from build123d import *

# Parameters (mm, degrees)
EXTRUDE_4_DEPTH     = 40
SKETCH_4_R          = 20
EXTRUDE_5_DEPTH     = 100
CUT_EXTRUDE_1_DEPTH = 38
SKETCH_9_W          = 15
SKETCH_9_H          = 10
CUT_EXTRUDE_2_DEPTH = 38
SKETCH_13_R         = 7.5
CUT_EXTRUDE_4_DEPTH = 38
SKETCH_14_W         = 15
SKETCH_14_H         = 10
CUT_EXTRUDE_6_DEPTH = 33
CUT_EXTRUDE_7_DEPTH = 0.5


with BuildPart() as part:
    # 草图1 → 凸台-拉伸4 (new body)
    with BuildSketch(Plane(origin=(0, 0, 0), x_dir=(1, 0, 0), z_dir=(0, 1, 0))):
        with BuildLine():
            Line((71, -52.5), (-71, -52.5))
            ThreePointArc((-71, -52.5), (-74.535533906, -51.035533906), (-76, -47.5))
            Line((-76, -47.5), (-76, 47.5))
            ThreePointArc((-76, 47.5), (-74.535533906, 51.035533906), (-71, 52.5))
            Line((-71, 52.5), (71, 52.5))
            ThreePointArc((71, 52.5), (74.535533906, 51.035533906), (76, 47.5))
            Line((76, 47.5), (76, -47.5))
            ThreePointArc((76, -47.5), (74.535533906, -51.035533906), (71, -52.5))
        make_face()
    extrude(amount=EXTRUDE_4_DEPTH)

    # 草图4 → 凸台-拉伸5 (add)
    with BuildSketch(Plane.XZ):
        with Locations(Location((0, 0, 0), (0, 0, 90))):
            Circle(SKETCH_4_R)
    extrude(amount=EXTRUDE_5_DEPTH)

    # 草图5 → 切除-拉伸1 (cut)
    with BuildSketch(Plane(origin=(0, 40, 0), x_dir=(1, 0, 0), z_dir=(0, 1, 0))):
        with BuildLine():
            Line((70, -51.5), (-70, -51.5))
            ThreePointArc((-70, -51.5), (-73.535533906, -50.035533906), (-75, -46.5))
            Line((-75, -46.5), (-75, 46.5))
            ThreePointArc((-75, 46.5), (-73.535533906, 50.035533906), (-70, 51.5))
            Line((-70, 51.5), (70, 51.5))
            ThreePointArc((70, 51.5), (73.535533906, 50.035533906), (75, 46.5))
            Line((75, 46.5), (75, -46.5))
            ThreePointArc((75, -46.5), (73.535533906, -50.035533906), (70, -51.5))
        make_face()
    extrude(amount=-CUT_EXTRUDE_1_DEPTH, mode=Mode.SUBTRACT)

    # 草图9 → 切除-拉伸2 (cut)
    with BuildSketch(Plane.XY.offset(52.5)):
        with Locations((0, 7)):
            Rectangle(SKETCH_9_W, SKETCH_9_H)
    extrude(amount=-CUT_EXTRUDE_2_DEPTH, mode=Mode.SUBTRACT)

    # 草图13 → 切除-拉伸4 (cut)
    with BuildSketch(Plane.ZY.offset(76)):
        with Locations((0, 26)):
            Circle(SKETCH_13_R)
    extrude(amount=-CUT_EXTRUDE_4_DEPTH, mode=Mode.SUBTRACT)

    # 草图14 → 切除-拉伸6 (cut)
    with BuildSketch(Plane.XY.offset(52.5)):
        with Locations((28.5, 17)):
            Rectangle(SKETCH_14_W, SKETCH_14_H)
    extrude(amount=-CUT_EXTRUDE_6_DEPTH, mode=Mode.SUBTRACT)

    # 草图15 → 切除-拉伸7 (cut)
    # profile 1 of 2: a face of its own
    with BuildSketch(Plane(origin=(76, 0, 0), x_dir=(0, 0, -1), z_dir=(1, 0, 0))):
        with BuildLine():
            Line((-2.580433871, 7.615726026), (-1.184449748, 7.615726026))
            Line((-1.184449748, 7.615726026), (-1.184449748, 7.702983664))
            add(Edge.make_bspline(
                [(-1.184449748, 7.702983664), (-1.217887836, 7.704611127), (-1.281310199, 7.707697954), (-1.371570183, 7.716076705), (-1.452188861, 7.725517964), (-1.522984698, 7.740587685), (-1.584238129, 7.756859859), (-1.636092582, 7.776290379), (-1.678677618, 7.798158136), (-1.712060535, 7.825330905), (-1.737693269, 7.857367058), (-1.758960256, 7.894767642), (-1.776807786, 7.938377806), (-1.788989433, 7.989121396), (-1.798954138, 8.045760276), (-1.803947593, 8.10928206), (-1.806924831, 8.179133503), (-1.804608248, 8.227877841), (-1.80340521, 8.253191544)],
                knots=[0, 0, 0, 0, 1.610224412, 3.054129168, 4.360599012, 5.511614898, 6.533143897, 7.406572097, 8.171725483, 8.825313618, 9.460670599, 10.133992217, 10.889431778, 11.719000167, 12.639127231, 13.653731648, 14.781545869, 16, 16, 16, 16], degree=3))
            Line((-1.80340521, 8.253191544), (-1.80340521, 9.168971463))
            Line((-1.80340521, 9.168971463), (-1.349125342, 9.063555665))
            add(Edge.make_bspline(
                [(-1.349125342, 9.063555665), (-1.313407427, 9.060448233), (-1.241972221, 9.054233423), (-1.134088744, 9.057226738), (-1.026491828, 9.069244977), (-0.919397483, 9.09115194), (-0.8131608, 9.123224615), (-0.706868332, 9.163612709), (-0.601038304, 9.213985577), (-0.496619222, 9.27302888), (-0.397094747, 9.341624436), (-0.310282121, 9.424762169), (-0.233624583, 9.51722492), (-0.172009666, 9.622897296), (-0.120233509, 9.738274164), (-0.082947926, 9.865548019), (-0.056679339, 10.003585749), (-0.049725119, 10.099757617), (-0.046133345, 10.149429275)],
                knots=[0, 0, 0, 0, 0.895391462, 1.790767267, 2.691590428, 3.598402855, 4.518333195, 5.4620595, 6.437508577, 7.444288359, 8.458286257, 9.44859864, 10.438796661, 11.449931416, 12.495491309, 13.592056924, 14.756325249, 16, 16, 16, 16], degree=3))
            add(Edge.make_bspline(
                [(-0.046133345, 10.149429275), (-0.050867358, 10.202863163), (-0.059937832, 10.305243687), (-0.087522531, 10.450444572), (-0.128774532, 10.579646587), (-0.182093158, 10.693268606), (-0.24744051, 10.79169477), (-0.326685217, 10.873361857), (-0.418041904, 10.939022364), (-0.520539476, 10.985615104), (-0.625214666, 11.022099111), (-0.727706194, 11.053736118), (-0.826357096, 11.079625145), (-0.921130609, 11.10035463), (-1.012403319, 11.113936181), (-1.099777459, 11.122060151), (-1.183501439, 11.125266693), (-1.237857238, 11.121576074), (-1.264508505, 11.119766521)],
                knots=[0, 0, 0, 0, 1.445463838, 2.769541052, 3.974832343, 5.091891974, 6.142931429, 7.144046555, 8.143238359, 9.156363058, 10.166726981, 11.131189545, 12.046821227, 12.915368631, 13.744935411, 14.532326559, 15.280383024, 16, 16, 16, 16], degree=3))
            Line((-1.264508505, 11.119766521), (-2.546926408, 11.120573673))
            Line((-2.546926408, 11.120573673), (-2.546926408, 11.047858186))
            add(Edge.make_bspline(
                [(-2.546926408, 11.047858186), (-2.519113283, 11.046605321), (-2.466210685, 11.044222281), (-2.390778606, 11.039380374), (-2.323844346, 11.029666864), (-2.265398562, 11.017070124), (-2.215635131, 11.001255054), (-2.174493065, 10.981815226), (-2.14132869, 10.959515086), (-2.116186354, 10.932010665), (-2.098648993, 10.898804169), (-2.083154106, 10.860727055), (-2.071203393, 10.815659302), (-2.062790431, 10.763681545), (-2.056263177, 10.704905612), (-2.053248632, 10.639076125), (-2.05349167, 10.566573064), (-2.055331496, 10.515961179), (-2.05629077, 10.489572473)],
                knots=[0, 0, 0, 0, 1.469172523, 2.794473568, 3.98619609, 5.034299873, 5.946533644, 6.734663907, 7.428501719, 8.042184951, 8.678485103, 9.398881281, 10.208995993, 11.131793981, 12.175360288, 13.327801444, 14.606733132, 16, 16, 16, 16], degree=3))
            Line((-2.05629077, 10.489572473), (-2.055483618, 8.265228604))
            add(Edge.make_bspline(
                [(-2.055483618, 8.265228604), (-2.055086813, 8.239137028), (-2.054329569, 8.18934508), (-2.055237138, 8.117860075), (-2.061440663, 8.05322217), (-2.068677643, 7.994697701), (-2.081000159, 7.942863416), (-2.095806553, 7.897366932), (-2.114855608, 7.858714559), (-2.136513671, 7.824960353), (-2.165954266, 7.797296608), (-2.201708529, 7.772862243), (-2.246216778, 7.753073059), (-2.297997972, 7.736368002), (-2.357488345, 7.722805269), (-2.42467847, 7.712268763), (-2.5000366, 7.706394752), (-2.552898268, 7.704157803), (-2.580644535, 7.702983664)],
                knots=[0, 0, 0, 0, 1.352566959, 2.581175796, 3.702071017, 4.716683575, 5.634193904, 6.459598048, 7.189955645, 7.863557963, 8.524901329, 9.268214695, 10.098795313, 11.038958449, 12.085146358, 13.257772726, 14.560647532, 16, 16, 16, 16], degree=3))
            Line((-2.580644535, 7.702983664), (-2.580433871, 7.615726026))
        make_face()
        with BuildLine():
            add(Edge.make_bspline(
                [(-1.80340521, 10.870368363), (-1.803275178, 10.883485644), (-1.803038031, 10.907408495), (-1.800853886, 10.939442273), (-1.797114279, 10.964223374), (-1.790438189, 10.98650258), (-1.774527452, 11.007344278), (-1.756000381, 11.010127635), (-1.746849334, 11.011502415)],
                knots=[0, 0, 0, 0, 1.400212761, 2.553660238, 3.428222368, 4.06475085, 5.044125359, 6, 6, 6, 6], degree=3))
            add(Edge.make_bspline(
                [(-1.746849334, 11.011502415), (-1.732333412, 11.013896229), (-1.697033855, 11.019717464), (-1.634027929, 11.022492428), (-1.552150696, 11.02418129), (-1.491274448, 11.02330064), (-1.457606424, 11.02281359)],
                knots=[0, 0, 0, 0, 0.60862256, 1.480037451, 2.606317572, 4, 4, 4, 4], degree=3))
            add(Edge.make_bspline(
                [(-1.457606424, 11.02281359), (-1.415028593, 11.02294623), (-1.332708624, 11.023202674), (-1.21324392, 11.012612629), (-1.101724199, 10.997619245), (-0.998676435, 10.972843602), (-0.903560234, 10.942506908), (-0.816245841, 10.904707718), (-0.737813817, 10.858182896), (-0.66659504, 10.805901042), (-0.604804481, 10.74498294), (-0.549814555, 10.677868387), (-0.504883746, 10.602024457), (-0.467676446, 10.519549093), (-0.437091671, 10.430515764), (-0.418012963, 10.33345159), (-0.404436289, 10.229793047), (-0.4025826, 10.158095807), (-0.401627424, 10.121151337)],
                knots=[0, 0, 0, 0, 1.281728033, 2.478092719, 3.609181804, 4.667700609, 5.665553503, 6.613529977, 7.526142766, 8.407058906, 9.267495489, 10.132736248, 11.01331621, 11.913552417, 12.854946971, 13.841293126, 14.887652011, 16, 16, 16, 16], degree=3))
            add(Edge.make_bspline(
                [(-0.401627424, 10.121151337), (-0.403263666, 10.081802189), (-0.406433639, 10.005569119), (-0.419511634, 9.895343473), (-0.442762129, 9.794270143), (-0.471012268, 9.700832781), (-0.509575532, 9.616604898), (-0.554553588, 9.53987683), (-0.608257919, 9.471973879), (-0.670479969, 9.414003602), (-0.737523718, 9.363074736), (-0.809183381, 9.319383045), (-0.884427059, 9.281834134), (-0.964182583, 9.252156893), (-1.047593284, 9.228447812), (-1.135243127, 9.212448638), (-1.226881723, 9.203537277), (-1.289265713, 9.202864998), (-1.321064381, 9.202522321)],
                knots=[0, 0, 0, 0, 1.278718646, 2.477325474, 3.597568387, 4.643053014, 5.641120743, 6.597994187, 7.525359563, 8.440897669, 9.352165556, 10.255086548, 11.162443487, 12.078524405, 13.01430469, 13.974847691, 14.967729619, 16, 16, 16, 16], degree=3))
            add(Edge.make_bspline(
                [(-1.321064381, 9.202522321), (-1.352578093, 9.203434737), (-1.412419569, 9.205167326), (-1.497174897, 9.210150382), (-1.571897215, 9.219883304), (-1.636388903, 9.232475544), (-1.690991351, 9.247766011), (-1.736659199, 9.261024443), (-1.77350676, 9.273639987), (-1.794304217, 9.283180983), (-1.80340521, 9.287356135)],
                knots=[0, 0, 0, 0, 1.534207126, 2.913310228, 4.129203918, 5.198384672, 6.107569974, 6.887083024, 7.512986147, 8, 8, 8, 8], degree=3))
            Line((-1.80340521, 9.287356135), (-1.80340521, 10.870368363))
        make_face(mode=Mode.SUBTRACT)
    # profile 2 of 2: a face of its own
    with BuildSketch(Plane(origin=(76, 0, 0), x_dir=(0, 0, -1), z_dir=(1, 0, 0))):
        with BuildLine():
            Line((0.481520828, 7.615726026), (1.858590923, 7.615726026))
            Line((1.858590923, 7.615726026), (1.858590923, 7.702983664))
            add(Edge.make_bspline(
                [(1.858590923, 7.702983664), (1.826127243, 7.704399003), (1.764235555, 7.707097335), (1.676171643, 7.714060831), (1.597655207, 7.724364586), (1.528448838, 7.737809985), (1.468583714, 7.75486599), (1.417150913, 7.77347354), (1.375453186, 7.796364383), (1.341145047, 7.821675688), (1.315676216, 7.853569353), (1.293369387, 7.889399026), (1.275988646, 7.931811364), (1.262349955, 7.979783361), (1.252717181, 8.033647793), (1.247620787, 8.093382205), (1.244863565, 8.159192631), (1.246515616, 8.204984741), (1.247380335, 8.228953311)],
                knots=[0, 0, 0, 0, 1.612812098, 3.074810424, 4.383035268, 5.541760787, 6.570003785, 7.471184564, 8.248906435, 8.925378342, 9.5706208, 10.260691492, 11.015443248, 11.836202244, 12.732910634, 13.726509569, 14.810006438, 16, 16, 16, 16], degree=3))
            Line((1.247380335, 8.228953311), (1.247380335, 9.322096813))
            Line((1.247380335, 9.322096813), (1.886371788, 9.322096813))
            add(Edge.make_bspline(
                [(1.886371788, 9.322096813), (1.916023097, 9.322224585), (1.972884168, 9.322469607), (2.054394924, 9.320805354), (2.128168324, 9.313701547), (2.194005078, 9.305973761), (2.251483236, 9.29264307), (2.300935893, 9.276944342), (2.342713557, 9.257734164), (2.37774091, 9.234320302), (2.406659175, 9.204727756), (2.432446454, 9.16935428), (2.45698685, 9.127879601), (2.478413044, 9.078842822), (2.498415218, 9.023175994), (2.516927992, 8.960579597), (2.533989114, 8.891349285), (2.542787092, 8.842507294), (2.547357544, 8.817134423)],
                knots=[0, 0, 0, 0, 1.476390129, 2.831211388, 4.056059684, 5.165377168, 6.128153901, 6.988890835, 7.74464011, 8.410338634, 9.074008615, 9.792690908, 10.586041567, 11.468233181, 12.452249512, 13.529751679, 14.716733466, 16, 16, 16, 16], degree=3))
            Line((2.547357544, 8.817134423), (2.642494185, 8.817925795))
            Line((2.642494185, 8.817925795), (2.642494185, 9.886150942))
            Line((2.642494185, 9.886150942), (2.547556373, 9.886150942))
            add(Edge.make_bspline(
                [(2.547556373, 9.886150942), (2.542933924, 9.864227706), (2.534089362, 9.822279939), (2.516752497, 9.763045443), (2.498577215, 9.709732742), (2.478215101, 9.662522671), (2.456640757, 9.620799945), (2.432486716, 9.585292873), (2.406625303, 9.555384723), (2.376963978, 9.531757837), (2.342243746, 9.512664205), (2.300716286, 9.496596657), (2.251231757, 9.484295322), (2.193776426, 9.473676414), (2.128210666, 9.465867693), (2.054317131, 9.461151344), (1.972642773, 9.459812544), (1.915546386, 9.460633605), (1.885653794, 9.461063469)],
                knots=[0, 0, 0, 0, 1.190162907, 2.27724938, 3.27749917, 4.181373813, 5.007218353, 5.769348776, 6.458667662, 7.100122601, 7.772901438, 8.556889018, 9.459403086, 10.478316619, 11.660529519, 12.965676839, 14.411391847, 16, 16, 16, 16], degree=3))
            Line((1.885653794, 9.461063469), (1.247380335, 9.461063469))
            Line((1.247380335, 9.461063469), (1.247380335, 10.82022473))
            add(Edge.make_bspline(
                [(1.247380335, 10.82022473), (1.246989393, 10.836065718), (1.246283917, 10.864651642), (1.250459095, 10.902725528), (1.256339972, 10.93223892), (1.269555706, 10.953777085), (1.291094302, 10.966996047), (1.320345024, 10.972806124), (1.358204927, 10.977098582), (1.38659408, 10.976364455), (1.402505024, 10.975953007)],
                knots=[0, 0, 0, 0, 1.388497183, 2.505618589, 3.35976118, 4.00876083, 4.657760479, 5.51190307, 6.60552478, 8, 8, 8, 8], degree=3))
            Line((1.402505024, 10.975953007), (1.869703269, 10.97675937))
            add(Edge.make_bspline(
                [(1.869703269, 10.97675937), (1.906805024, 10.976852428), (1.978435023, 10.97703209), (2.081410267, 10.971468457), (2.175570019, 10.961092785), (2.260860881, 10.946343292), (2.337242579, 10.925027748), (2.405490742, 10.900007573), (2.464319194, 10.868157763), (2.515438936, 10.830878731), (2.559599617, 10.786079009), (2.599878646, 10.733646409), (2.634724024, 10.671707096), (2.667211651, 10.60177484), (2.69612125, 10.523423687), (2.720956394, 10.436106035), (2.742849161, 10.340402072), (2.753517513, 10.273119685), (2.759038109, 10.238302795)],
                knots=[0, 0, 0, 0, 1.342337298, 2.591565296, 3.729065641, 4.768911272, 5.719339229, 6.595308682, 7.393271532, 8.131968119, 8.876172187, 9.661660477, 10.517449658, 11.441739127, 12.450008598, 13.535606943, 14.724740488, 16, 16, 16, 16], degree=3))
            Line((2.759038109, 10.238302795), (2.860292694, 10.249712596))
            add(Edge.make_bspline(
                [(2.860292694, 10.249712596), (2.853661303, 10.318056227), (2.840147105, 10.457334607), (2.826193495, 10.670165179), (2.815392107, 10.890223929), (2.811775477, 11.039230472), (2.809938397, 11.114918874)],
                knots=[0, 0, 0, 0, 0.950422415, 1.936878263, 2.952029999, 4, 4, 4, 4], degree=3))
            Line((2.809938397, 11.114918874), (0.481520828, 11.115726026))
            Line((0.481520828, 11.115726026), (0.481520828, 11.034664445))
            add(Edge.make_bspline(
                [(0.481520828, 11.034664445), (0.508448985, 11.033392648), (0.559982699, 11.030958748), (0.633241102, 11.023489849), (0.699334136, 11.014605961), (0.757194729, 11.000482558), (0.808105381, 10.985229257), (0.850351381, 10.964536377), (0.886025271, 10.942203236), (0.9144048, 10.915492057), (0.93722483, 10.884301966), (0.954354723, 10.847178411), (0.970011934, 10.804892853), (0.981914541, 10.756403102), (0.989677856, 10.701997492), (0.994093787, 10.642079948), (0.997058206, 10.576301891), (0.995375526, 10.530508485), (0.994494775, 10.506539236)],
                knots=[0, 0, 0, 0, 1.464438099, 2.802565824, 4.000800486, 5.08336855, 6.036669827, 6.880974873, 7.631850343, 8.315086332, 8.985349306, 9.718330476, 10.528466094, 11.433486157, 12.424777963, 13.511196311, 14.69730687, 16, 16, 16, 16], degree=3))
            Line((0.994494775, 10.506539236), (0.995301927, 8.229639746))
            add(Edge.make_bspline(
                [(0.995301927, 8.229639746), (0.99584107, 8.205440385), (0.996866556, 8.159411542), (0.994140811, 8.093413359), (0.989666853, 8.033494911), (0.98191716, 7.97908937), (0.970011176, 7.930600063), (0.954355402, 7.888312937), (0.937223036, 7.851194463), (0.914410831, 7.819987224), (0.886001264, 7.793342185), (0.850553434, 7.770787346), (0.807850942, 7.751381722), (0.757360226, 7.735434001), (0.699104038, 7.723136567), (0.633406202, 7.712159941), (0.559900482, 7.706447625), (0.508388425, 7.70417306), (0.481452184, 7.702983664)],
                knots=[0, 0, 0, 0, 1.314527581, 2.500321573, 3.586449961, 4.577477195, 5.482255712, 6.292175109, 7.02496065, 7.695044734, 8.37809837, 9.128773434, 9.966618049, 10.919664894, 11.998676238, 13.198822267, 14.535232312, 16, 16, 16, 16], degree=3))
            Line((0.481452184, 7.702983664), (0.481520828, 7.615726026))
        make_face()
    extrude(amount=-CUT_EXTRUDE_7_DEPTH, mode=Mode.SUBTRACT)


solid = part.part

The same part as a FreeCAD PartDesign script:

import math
import FreeCAD as App
import Part
import Sketcher

V = App.Vector
Q = App.Units.Quantity

doc = App.newDocument("Part")
body = doc.addObject("PartDesign::Body", "Body")

sketch1 = body.newObject("Sketcher::SketchObject", "Sketch")
sketch1.AttachmentSupport = (doc.getObject("XZ_Plane"), [""])
sketch1.MapMode = "FlatFace"
sketch1.addGeometry([
    Part.LineSegment(V(-71, 52, 0), V(71, 52, 0)),
    Part.ArcOfCircle(Part.Circle(V(71, 48, 0), V(0, 0, 1), 5), math.radians(0), math.radians(90)),
    Part.LineSegment(V(76, 48, 0), V(76, -48, 0)),
    Part.ArcOfCircle(Part.Circle(V(71, -48, 0), V(0, 0, 1), 5), math.radians(-90), math.radians(0)),
    Part.LineSegment(V(71, -52, 0), V(-71, -52, 0)),
    Part.ArcOfCircle(Part.Circle(V(-71, -48, 0), V(0, 0, 1), 5), math.radians(180), math.radians(270)),
    Part.LineSegment(V(-76, -48, 0), V(-76, 48, 0)),
    Part.ArcOfCircle(Part.Circle(V(-71, 48, 0), V(0, 0, 1), 5), math.radians(90), math.radians(180)),
], False)
sketch1.addConstraint([
    Sketcher.Constraint("Tangent", 0, 2, 1, 2),
    Sketcher.Constraint("Tangent", 1, 1, 2, 1),
    Sketcher.Constraint("Tangent", 2, 2, 3, 2),
    Sketcher.Constraint("Tangent", 3, 1, 4, 1),
    Sketcher.Constraint("Tangent", 4, 2, 5, 2),
    Sketcher.Constraint("Tangent", 5, 1, 6, 1),
    Sketcher.Constraint("Tangent", 6, 2, 7, 2),
    Sketcher.Constraint("Tangent", 7, 1, 0, 1),
    Sketcher.Constraint("Horizontal", 0),
    Sketcher.Constraint("Vertical", 2),
    Sketcher.Constraint("Horizontal", 4),
    Sketcher.Constraint("Vertical", 6),
    Sketcher.Constraint("Equal", 1, 3),
    Sketcher.Constraint("Equal", 3, 5),
    Sketcher.Constraint("Equal", 5, 7),
    Sketcher.Constraint("Symmetric", 1, 3, 5, 3, -1, 1),
    Sketcher.Constraint("Radius", 1, Q("5 mm")),
    Sketcher.Constraint("DistanceX", 0, 1, 0, 2, Q("142 mm")),
    Sketcher.Constraint("DistanceY", 2, 2, 2, 1, Q("95 mm")),
])
pad1 = body.newObject("PartDesign::Pad", "Pad")
pad1.Profile = sketch1
pad1.Length = 40
pad1.Reversed = True

sketch2 = body.newObject("Sketcher::SketchObject", "Sketch001")
sketch2.AttachmentSupport = (doc.getObject("XZ_Plane"), [""])
sketch2.MapMode = "FlatFace"
sketch2.addGeometry(Part.Circle(V(0, 0, 0), V(0, 0, 1), 20), False)
sketch2.addConstraint([
    Sketcher.Constraint("Coincident", 0, 3, -1, 1),
    Sketcher.Constraint("Diameter", 0, Q("40 mm")),
])
pad2 = body.newObject("PartDesign::Pad", "Pad001")
pad2.Profile = sketch2
pad2.Length = 100

sketch3 = body.newObject("Sketcher::SketchObject", "Sketch002")
sketch3.AttachmentSupport = (doc.getObject("XZ_Plane"), [""])
sketch3.MapMode = "FlatFace"
sketch3.AttachmentOffset = App.Placement(V(0, 0, -40), App.Rotation())
sketch3.addGeometry([
    Part.LineSegment(V(-70, 52, 0), V(70, 52, 0)),
    Part.ArcOfCircle(Part.Circle(V(70, 46, 0), V(0, 0, 1), 5), math.radians(0), math.radians(90)),
    Part.LineSegment(V(75, 46, 0), V(75, -46, 0)),
    Part.ArcOfCircle(Part.Circle(V(70, -46, 0), V(0, 0, 1), 5), math.radians(-90), math.radians(0)),
    Part.LineSegment(V(70, -52, 0), V(-70, -52, 0)),
    Part.ArcOfCircle(Part.Circle(V(-70, -46, 0), V(0, 0, 1), 5), math.radians(180), math.radians(270)),
    Part.LineSegment(V(-75, -46, 0), V(-75, 46, 0)),
    Part.ArcOfCircle(Part.Circle(V(-70, 46, 0), V(0, 0, 1), 5), math.radians(90), math.radians(180)),
], False)
sketch3.addConstraint([
    Sketcher.Constraint("Tangent", 0, 2, 1, 2),
    Sketcher.Constraint("Tangent", 1, 1, 2, 1),
    Sketcher.Constraint("Tangent", 2, 2, 3, 2),
    Sketcher.Constraint("Tangent", 3, 1, 4, 1),
    Sketcher.Constraint("Tangent", 4, 2, 5, 2),
    Sketcher.Constraint("Tangent", 5, 1, 6, 1),
    Sketcher.Constraint("Tangent", 6, 2, 7, 2),
    Sketcher.Constraint("Tangent", 7, 1, 0, 1),
    Sketcher.Constraint("Horizontal", 0),
    Sketcher.Constraint("Vertical", 2),
    Sketcher.Constraint("Horizontal", 4),
    Sketcher.Constraint("Vertical", 6),
    Sketcher.Constraint("Equal", 1, 3),
    Sketcher.Constraint("Equal", 3, 5),
    Sketcher.Constraint("Equal", 5, 7),
    Sketcher.Constraint("Symmetric", 1, 3, 5, 3, -1, 1),
    Sketcher.Constraint("Radius", 1, Q("5 mm")),
    Sketcher.Constraint("DistanceX", 0, 1, 0, 2, Q("140 mm")),
    Sketcher.Constraint("DistanceY", 2, 2, 2, 1, Q("93 mm")),
])
pocket1 = body.newObject("PartDesign::Pocket", "Pocket")
pocket1.Profile = sketch3
pocket1.Length = 38
pocket1.Reversed = True

sketch4 = body.newObject("Sketcher::SketchObject", "Sketch003")
sketch4.AttachmentSupport = (doc.getObject("XY_Plane"), [""])
sketch4.MapMode = "FlatFace"
sketch4.AttachmentOffset = App.Placement(V(0, 0, 52.5), App.Rotation())
sketch4.addGeometry([
    Part.LineSegment(V(-8, 12, 0), V(-8, 2, 0)),
    Part.LineSegment(V(-8, 2, 0), V(8, 2, 0)),
    Part.LineSegment(V(8, 2, 0), V(8, 12, 0)),
    Part.LineSegment(V(8, 12, 0), V(-8, 12, 0)),
], False)
sketch4.addConstraint([
    Sketcher.Constraint("Coincident", 0, 2, 1, 1),
    Sketcher.Constraint("Coincident", 1, 2, 2, 1),
    Sketcher.Constraint("Coincident", 2, 2, 3, 1),
    Sketcher.Constraint("Coincident", 3, 2, 0, 1),
    Sketcher.Constraint("Vertical", 0),
    Sketcher.Constraint("Horizontal", 1),
    Sketcher.Constraint("Vertical", 2),
    Sketcher.Constraint("Horizontal", 3),
    Sketcher.Constraint("DistanceX", 1, 1, 1, 2, Q("15 mm")),
    Sketcher.Constraint("DistanceY", 0, 2, 0, 1, Q("10 mm")),
    Sketcher.Constraint("DistanceY", -1, 1, 0, 2, Q("2 mm")),
    Sketcher.Constraint("DistanceX", 0, 2, -1, 1, Q("7.5 mm")),
])
pocket2 = body.newObject("PartDesign::Pocket", "Pocket001")
pocket2.Profile = sketch4
pocket2.Length = 38

sketch5 = body.newObject("Sketcher::SketchObject", "Sketch004")
sketch5.AttachmentSupport = (doc.getObject("YZ_Plane"), [""])
sketch5.MapMode = "FlatFace"
sketch5.AttachmentOffset = App.Placement(V(0, 0, -76), App.Rotation())
sketch5.addGeometry(Part.Circle(V(26, 0, 0), V(0, 0, 1), 8), False)
sketch5.addConstraint([
    Sketcher.Constraint("PointOnObject", 0, 3, -1),
    Sketcher.Constraint("Diameter", 0, Q("15 mm")),
    Sketcher.Constraint("DistanceX", -1, 1, 0, 3, Q("26 mm")),
])
pocket3 = body.newObject("PartDesign::Pocket", "Pocket002")
pocket3.Profile = sketch5
pocket3.Length = 38
pocket3.Reversed = True

sketch6 = body.newObject("Sketcher::SketchObject", "Sketch005")
sketch6.AttachmentSupport = (doc.getObject("XY_Plane"), [""])
sketch6.MapMode = "FlatFace"
sketch6.AttachmentOffset = App.Placement(V(0, 0, 52.5), App.Rotation())
sketch6.addGeometry([
    Part.LineSegment(V(21, 22, 0), V(21, 12, 0)),
    Part.LineSegment(V(21, 12, 0), V(36, 12, 0)),
    Part.LineSegment(V(36, 12, 0), V(36, 22, 0)),
    Part.LineSegment(V(36, 22, 0), V(21, 22, 0)),
], False)
sketch6.addConstraint([
    Sketcher.Constraint("Coincident", 0, 2, 1, 1),
    Sketcher.Constraint("Coincident", 1, 2, 2, 1),
    Sketcher.Constraint("Coincident", 2, 2, 3, 1),
    Sketcher.Constraint("Coincident", 3, 2, 0, 1),
    Sketcher.Constraint("Vertical", 0),
    Sketcher.Constraint("Horizontal", 1),
    Sketcher.Constraint("Vertical", 2),
    Sketcher.Constraint("Horizontal", 3),
    Sketcher.Constraint("DistanceX", 1, 1, 1, 2, Q("15 mm")),
    Sketcher.Constraint("DistanceY", 0, 2, 0, 1, Q("10 mm")),
    Sketcher.Constraint("DistanceX", -1, 1, 0, 2, Q("21 mm")),
    Sketcher.Constraint("DistanceY", -1, 1, 0, 2, Q("12 mm")),
])
pocket4 = body.newObject("PartDesign::Pocket", "Pocket003")
pocket4.Profile = sketch6
pocket4.Length = 33

sketch7 = body.newObject("Sketcher::SketchObject", "Sketch006")
sketch7.AttachmentSupport = (doc.getObject("YZ_Plane"), [""])
sketch7.MapMode = "FlatFace"
sketch7.AttachmentOffset = App.Placement(V(0, 0, 76), App.Rotation())
sketch7.addGeometry([
    Part.LineSegment(V(7.615726, 2.580434, 0), V(7.615726, 1.18445, 0)),
    Part.LineSegment(V(7.615726, 1.18445, 0), V(7.702984, 1.18445, 0)),
    Part.BSplineCurve([V(7.702984, 1.18445, 0), V(7.704611, 1.217888, 0), V(7.707698, 1.28131, 0), V(7.716077, 1.37157, 0), V(7.725518, 1.452189, 0), V(7.740588, 1.522985, 0), V(7.75686, 1.584238, 0), V(7.77629, 1.636093, 0), V(7.798158, 1.678678, 0), V(7.825331, 1.712061, 0), V(7.857367, 1.737693, 0), V(7.894768, 1.75896, 0), V(7.938378, 1.776808, 0), V(7.989121, 1.788989, 0), V(8.04576, 1.798954, 0), V(8.109282, 1.803948, 0), V(8.179134, 1.806925, 0), V(8.227878, 1.804608, 0), V(8.253192, 1.803405, 0)], [4, 1, 1, 1, 1, 1, 1, 1, 1, 1, 1, 1, 1, 1, 1, 1, 4], [0, 1.610224412, 3.054129168, 4.360599012, 5.511614898, 6.533143897, 7.406572097, 8.171725483, 8.825313618, 9.460670599, 10.133992217, 10.889431778, 11.719000167, 12.639127231, 13.653731648, 14.781545869, 16], False, 3, [1, 1, 1, 1, 1, 1, 1, 1, 1, 1, 1, 1, 1, 1, 1, 1, 1, 1, 1], False),
    Part.LineSegment(V(8.253192, 1.803405, 0), V(9.168971, 1.803405, 0)),
    Part.LineSegment(V(9.168971, 1.803405, 0), V(9.063556, 1.349125, 0)),
    Part.BSplineCurve([V(9.063556, 1.349125, 0), V(9.060448, 1.313407, 0), V(9.054233, 1.241972, 0), V(9.057227, 1.134089, 0), V(9.069245, 1.026492, 0), V(9.091152, 0.919397, 0), V(9.123225, 0.813161, 0), V(9.163613, 0.706868, 0), V(9.213986, 0.601038, 0), V(9.273029, 0.496619, 0), V(9.341624, 0.397095, 0), V(9.424762, 0.310282, 0), V(9.517225, 0.233625, 0), V(9.622897, 0.17201, 0), V(9.738274, 0.120234, 0), V(9.865548, 0.082948, 0), V(10.003586, 0.056679, 0), V(10.099758, 0.049725, 0), V(10.149429, 0.046133, 0)], [4, 1, 1, 1, 1, 1, 1, 1, 1, 1, 1, 1, 1, 1, 1, 1, 4], [0, 0.895391462, 1.790767267, 2.691590428, 3.598402855, 4.518333195, 5.4620595, 6.437508577, 7.444288359, 8.458286257, 9.44859864, 10.438796661, 11.449931416, 12.495491309, 13.592056924, 14.756325249, 16], False, 3, [1, 1, 1, 1, 1, 1, 1, 1, 1, 1, 1, 1, 1, 1, 1, 1, 1, 1, 1], False),
    Part.BSplineCurve([V(10.149429, 0.046133, 0), V(10.202863, 0.050867, 0), V(10.305244, 0.059938, 0), V(10.450445, 0.087523, 0), V(10.579647, 0.128775, 0), V(10.693269, 0.182093, 0), V(10.791695, 0.247441, 0), V(10.873362, 0.326685, 0), V(10.939022, 0.418042, 0), V(10.985615, 0.520539, 0), V(11.022099, 0.625215, 0), V(11.053736, 0.727706, 0), V(11.079625, 0.826357, 0), V(11.100355, 0.921131, 0), V(11.113936, 1.012403, 0), V(11.12206, 1.099777, 0), V(11.125267, 1.183501, 0), V(11.121576, 1.237857, 0), V(11.119767, 1.264509, 0)], [4, 1, 1, 1, 1, 1, 1, 1, 1, 1, 1, 1, 1, 1, 1, 1, 4], [0, 1.445463838, 2.769541052, 3.974832343, 5.091891974, 6.142931429, 7.144046555, 8.143238359, 9.156363058, 10.166726981, 11.131189545, 12.046821227, 12.915368631, 13.744935411, 14.532326559, 15.280383024, 16], False, 3, [1, 1, 1, 1, 1, 1, 1, 1, 1, 1, 1, 1, 1, 1, 1, 1, 1, 1, 1], False),
    Part.LineSegment(V(11.119767, 1.264509, 0), V(11.120574, 2.546926, 0)),
    Part.LineSegment(V(11.120574, 2.546926, 0), V(11.047858, 2.546926, 0)),
    Part.BSplineCurve([V(11.047858, 2.546926, 0), V(11.046605, 2.519113, 0), V(11.044222, 2.466211, 0), V(11.03938, 2.390779, 0), V(11.029667, 2.323844, 0), V(11.01707, 2.265399, 0), V(11.001255, 2.215635, 0), V(10.981815, 2.174493, 0), V(10.959515, 2.141329, 0), V(10.932011, 2.116186, 0), V(10.898804, 2.098649, 0), V(10.860727, 2.083154, 0), V(10.815659, 2.071203, 0), V(10.763682, 2.06279, 0), V(10.704906, 2.056263, 0), V(10.639076, 2.053249, 0), V(10.566573, 2.053492, 0), V(10.515961, 2.055331, 0), V(10.489572, 2.056291, 0)], [4, 1, 1, 1, 1, 1, 1, 1, 1, 1, 1, 1, 1, 1, 1, 1, 4], [0, 1.469172523, 2.794473568, 3.98619609, 5.034299873, 5.946533644, 6.734663907, 7.428501719, 8.042184951, 8.678485103, 9.398881281, 10.208995993, 11.131793981, 12.175360288, 13.327801444, 14.606733132, 16], False, 3, [1, 1, 1, 1, 1, 1, 1, 1, 1, 1, 1, 1, 1, 1, 1, 1, 1, 1, 1], False),
    Part.LineSegment(V(10.489572, 2.056291, 0), V(8.265229, 2.055484, 0)),
    Part.BSplineCurve([V(8.265229, 2.055484, 0), V(8.239137, 2.055087, 0), V(8.189345, 2.05433, 0), V(8.11786, 2.055237, 0), V(8.053222, 2.061441, 0), V(7.994698, 2.068678, 0), V(7.942863, 2.081, 0), V(7.897367, 2.095807, 0), V(7.858715, 2.114856, 0), V(7.82496, 2.136514, 0), V(7.797297, 2.165954, 0), V(7.772862, 2.201709, 0), V(7.753073, 2.246217, 0), V(7.736368, 2.297998, 0), V(7.722805, 2.357488, 0), V(7.712269, 2.424678, 0), V(7.706395, 2.500037, 0), V(7.704158, 2.552898, 0), V(7.702984, 2.580645, 0)], [4, 1, 1, 1, 1, 1, 1, 1, 1, 1, 1, 1, 1, 1, 1, 1, 4], [0, 1.352566959, 2.581175796, 3.702071017, 4.716683575, 5.634193904, 6.459598048, 7.189955645, 7.863557963, 8.524901329, 9.268214695, 10.098795313, 11.038958449, 12.085146358, 13.257772726, 14.560647532, 16], False, 3, [1, 1, 1, 1, 1, 1, 1, 1, 1, 1, 1, 1, 1, 1, 1, 1, 1, 1, 1], False),
    Part.LineSegment(V(7.702984, 2.580645, 0), V(7.615726, 2.580434, 0)),
    Part.LineSegment(V(9.287356, 1.803405, 0), V(10.870368, 1.803405, 0)),
    Part.BSplineCurve([V(10.870368, 1.803405, 0), V(10.883486, 1.803275, 0), V(10.907408, 1.803038, 0), V(10.939442, 1.800854, 0), V(10.964223, 1.797114, 0), V(10.986503, 1.790438, 0), V(11.007344, 1.774527, 0), V(11.010128, 1.756, 0), V(11.011502, 1.746849, 0)], [4, 1, 1, 1, 1, 1, 4], [0, 1.400212761, 2.553660238, 3.428222368, 4.06475085, 5.044125359, 6], False, 3, [1, 1, 1, 1, 1, 1, 1, 1, 1], False),
    Part.BSplineCurve([V(11.011502, 1.746849, 0), V(11.013896, 1.732333, 0), V(11.019717, 1.697034, 0), V(11.022492, 1.634028, 0), V(11.024181, 1.552151, 0), V(11.023301, 1.491274, 0), V(11.022814, 1.457606, 0)], [4, 1, 1, 1, 4], [0, 0.60862256, 1.480037451, 2.606317572, 4], False, 3, [1, 1, 1, 1, 1, 1, 1], False),
    Part.BSplineCurve([V(11.022814, 1.457606, 0), V(11.022946, 1.415029, 0), V(11.023203, 1.332709, 0), V(11.012613, 1.213244, 0), V(10.997619, 1.101724, 0), V(10.972844, 0.998676, 0), V(10.942507, 0.90356, 0), V(10.904708, 0.816246, 0), V(10.858183, 0.737814, 0), V(10.805901, 0.666595, 0), V(10.744983, 0.604804, 0), V(10.677868, 0.549815, 0), V(10.602024, 0.504884, 0), V(10.519549, 0.467676, 0), V(10.430516, 0.437092, 0), V(10.333452, 0.418013, 0), V(10.229793, 0.404436, 0), V(10.158096, 0.402583, 0), V(10.121151, 0.401627, 0)], [4, 1, 1, 1, 1, 1, 1, 1, 1, 1, 1, 1, 1, 1, 1, 1, 4], [0, 1.281728033, 2.478092719, 3.609181804, 4.667700609, 5.665553503, 6.613529977, 7.526142766, 8.407058906, 9.267495489, 10.132736248, 11.01331621, 11.913552417, 12.854946971, 13.841293126, 14.887652011, 16], False, 3, [1, 1, 1, 1, 1, 1, 1, 1, 1, 1, 1, 1, 1, 1, 1, 1, 1, 1, 1], False),
    Part.BSplineCurve([V(10.121151, 0.401627, 0), V(10.081802, 0.403264, 0), V(10.005569, 0.406434, 0), V(9.895343, 0.419512, 0), V(9.79427, 0.442762, 0), V(9.700833, 0.471012, 0), V(9.616605, 0.509576, 0), V(9.539877, 0.554554, 0), V(9.471974, 0.608258, 0), V(9.414004, 0.67048, 0), V(9.363075, 0.737524, 0), V(9.319383, 0.809183, 0), V(9.281834, 0.884427, 0), V(9.252157, 0.964183, 0), V(9.228448, 1.047593, 0), V(9.212449, 1.135243, 0), V(9.203537, 1.226882, 0), V(9.202865, 1.289266, 0), V(9.202522, 1.321064, 0)], [4, 1, 1, 1, 1, 1, 1, 1, 1, 1, 1, 1, 1, 1, 1, 1, 4], [0, 1.278718646, 2.477325474, 3.597568387, 4.643053014, 5.641120743, 6.597994187, 7.525359563, 8.440897669, 9.352165556, 10.255086548, 11.162443487, 12.078524405, 13.01430469, 13.974847691, 14.967729619, 16], False, 3, [1, 1, 1, 1, 1, 1, 1, 1, 1, 1, 1, 1, 1, 1, 1, 1, 1, 1, 1], False),
    Part.BSplineCurve([V(9.202522, 1.321064, 0), V(9.203435, 1.352578, 0), V(9.205167, 1.41242, 0), V(9.21015, 1.497175, 0), V(9.219883, 1.571897, 0), V(9.232476, 1.636389, 0), V(9.247766, 1.690991, 0), V(9.261024, 1.736659, 0), V(9.27364, 1.773507, 0), V(9.283181, 1.794304, 0), V(9.287356, 1.803405, 0)], [4, 1, 1, 1, 1, 1, 1, 1, 4], [0, 1.534207126, 2.913310228, 4.129203918, 5.198384672, 6.107569974, 6.887083024, 7.512986147, 8], False, 3, [1, 1, 1, 1, 1, 1, 1, 1, 1, 1, 1], False),
    Part.LineSegment(V(7.615726, -0.481521, 0), V(7.615726, -1.858591, 0)),
    Part.LineSegment(V(7.615726, -1.858591, 0), V(7.702984, -1.858591, 0)),
    Part.BSplineCurve([V(7.702984, -1.858591, 0), V(7.704399, -1.826127, 0), V(7.707097, -1.764236, 0), V(7.714061, -1.676172, 0), V(7.724365, -1.597655, 0), V(7.73781, -1.528449, 0), V(7.754866, -1.468584, 0), V(7.773474, -1.417151, 0), V(7.796364, -1.375453, 0), V(7.821676, -1.341145, 0), V(7.853569, -1.315676, 0), V(7.889399, -1.293369, 0), V(7.931811, -1.275989, 0), V(7.979783, -1.26235, 0), V(8.033648, -1.252717, 0), V(8.093382, -1.247621, 0), V(8.159193, -1.244864, 0), V(8.204985, -1.246516, 0), V(8.228953, -1.24738, 0)], [4, 1, 1, 1, 1, 1, 1, 1, 1, 1, 1, 1, 1, 1, 1, 1, 4], [0, 1.612812098, 3.074810424, 4.383035268, 5.541760787, 6.570003785, 7.471184564, 8.248906435, 8.925378342, 9.5706208, 10.260691492, 11.015443248, 11.836202244, 12.732910634, 13.726509569, 14.810006438, 16], False, 3, [1, 1, 1, 1, 1, 1, 1, 1, 1, 1, 1, 1, 1, 1, 1, 1, 1, 1, 1], False),
    Part.LineSegment(V(8.228953, -1.24738, 0), V(9.322097, -1.24738, 0)),
    Part.LineSegment(V(9.322097, -1.24738, 0), V(9.322097, -1.886372, 0)),
    Part.BSplineCurve([V(9.322097, -1.886372, 0), V(9.322225, -1.916023, 0), V(9.32247, -1.972884, 0), V(9.320805, -2.054395, 0), V(9.313702, -2.128168, 0), V(9.305974, -2.194005, 0), V(9.292643, -2.251483, 0), V(9.276944, -2.300936, 0), V(9.257734, -2.342714, 0), V(9.23432, -2.377741, 0), V(9.204728, -2.406659, 0), V(9.169354, -2.432446, 0), V(9.12788, -2.456987, 0), V(9.078843, -2.478413, 0), V(9.023176, -2.498415, 0), V(8.96058, -2.516928, 0), V(8.891349, -2.533989, 0), V(8.842507, -2.542787, 0), V(8.817134, -2.547358, 0)], [4, 1, 1, 1, 1, 1, 1, 1, 1, 1, 1, 1, 1, 1, 1, 1, 4], [0, 1.476390129, 2.831211388, 4.056059684, 5.165377168, 6.128153901, 6.988890835, 7.74464011, 8.410338634, 9.074008615, 9.792690908, 10.586041567, 11.468233181, 12.452249512, 13.529751679, 14.716733466, 16], False, 3, [1, 1, 1, 1, 1, 1, 1, 1, 1, 1, 1, 1, 1, 1, 1, 1, 1, 1, 1], False),
    Part.LineSegment(V(8.817134, -2.547358, 0), V(8.817926, -2.642494, 0)),
    Part.LineSegment(V(8.817926, -2.642494, 0), V(9.886151, -2.642494, 0)),
    Part.LineSegment(V(9.886151, -2.642494, 0), V(9.886151, -2.547556, 0)),
    Part.BSplineCurve([V(9.886151, -2.547556, 0), V(9.864228, -2.542934, 0), V(9.82228, -2.534089, 0), V(9.763045, -2.516752, 0), V(9.709733, -2.498577, 0), V(9.662523, -2.478215, 0), V(9.6208, -2.456641, 0), V(9.585293, -2.432487, 0), V(9.555385, -2.406625, 0), V(9.531758, -2.376964, 0), V(9.512664, -2.342244, 0), V(9.496597, -2.300716, 0), V(9.484295, -2.251232, 0), V(9.473676, -2.193776, 0), V(9.465868, -2.128211, 0), V(9.461151, -2.054317, 0), V(9.459813, -1.972643, 0), V(9.460634, -1.915546, 0), V(9.461063, -1.885654, 0)], [4, 1, 1, 1, 1, 1, 1, 1, 1, 1, 1, 1, 1, 1, 1, 1, 4], [0, 1.190162907, 2.27724938, 3.27749917, 4.181373813, 5.007218353, 5.769348776, 6.458667662, 7.100122601, 7.772901438, 8.556889018, 9.459403086, 10.478316619, 11.660529519, 12.965676839, 14.411391847, 16], False, 3, [1, 1, 1, 1, 1, 1, 1, 1, 1, 1, 1, 1, 1, 1, 1, 1, 1, 1, 1], False),
    Part.LineSegment(V(9.461063, -1.885654, 0), V(9.461063, -1.24738, 0)),
    Part.LineSegment(V(9.461063, -1.24738, 0), V(10.820225, -1.24738, 0)),
    Part.BSplineCurve([V(10.820225, -1.24738, 0), V(10.836066, -1.246989, 0), V(10.864652, -1.246284, 0), V(10.902726, -1.250459, 0), V(10.932239, -1.25634, 0), V(10.953777, -1.269556, 0), V(10.966996, -1.291094, 0), V(10.972806, -1.320345, 0), V(10.977099, -1.358205, 0), V(10.976364, -1.386594, 0), V(10.975953, -1.402505, 0)], [4, 1, 1, 1, 1, 1, 1, 1, 4], [0, 1.388497183, 2.505618589, 3.35976118, 4.00876083, 4.657760479, 5.51190307, 6.60552478, 8], False, 3, [1, 1, 1, 1, 1, 1, 1, 1, 1, 1, 1], False),
    Part.LineSegment(V(10.975953, -1.402505, 0), V(10.976759, -1.869703, 0)),
    Part.BSplineCurve([V(10.976759, -1.869703, 0), V(10.976852, -1.906805, 0), V(10.977032, -1.978435, 0), V(10.971468, -2.08141, 0), V(10.961093, -2.17557, 0), V(10.946343, -2.260861, 0), V(10.925028, -2.337243, 0), V(10.900008, -2.405491, 0), V(10.868158, -2.464319, 0), V(10.830879, -2.515439, 0), V(10.786079, -2.5596, 0), V(10.733646, -2.599879, 0), V(10.671707, -2.634724, 0), V(10.601775, -2.667212, 0), V(10.523424, -2.696121, 0), V(10.436106, -2.720956, 0), V(10.340402, -2.742849, 0), V(10.27312, -2.753518, 0), V(10.238303, -2.759038, 0)], [4, 1, 1, 1, 1, 1, 1, 1, 1, 1, 1, 1, 1, 1, 1, 1, 4], [0, 1.342337298, 2.591565296, 3.729065641, 4.768911272, 5.719339229, 6.595308682, 7.393271532, 8.131968119, 8.876172187, 9.661660477, 10.517449658, 11.441739127, 12.450008598, 13.535606943, 14.724740488, 16], False, 3, [1, 1, 1, 1, 1, 1, 1, 1, 1, 1, 1, 1, 1, 1, 1, 1, 1, 1, 1], False),
    Part.LineSegment(V(10.238303, -2.759038, 0), V(10.249713, -2.860293, 0)),
    Part.BSplineCurve([V(10.249713, -2.860293, 0), V(10.318056, -2.853661, 0), V(10.457335, -2.840147, 0), V(10.670165, -2.826193, 0), V(10.890224, -2.815392, 0), V(11.03923, -2.811775, 0), V(11.114919, -2.809938, 0)], [4, 1, 1, 1, 4], [0, 0.950422415, 1.936878263, 2.952029999, 4], False, 3, [1, 1, 1, 1, 1, 1, 1], False),
    Part.LineSegment(V(11.114919, -2.809938, 0), V(11.115726, -0.481521, 0)),
    Part.LineSegment(V(11.115726, -0.481521, 0), V(11.034664, -0.481521, 0)),
    Part.BSplineCurve([V(11.034664, -0.481521, 0), V(11.033393, -0.508449, 0), V(11.030959, -0.559983, 0), V(11.02349, -0.633241, 0), V(11.014606, -0.699334, 0), V(11.000483, -0.757195, 0), V(10.985229, -0.808105, 0), V(10.964536, -0.850351, 0), V(10.942203, -0.886025, 0), V(10.915492, -0.914405, 0), V(10.884302, -0.937225, 0), V(10.847178, -0.954355, 0), V(10.804893, -0.970012, 0), V(10.756403, -0.981915, 0), V(10.701997, -0.989678, 0), V(10.64208, -0.994094, 0), V(10.576302, -0.997058, 0), V(10.530508, -0.995376, 0), V(10.506539, -0.994495, 0)], [4, 1, 1, 1, 1, 1, 1, 1, 1, 1, 1, 1, 1, 1, 1, 1, 4], [0, 1.464438099, 2.802565824, 4.000800486, 5.08336855, 6.036669827, 6.880974873, 7.631850343, 8.315086332, 8.985349306, 9.718330476, 10.528466094, 11.433486157, 12.424777963, 13.511196311, 14.69730687, 16], False, 3, [1, 1, 1, 1, 1, 1, 1, 1, 1, 1, 1, 1, 1, 1, 1, 1, 1, 1, 1], False),
    Part.LineSegment(V(10.506539, -0.994495, 0), V(8.22964, -0.995302, 0)),
    Part.BSplineCurve([V(8.22964, -0.995302, 0), V(8.20544, -0.995841, 0), V(8.159412, -0.996867, 0), V(8.093413, -0.994141, 0), V(8.033495, -0.989667, 0), V(7.979089, -0.981917, 0), V(7.9306, -0.970011, 0), V(7.888313, -0.954355, 0), V(7.851194, -0.937223, 0), V(7.819987, -0.914411, 0), V(7.793342, -0.886001, 0), V(7.770787, -0.850553, 0), V(7.751382, -0.807851, 0), V(7.735434, -0.75736, 0), V(7.723137, -0.699104, 0), V(7.71216, -0.633406, 0), V(7.706448, -0.5599, 0), V(7.704173, -0.508388, 0), V(7.702984, -0.481452, 0)], [4, 1, 1, 1, 1, 1, 1, 1, 1, 1, 1, 1, 1, 1, 1, 1, 4], [0, 1.314527581, 2.500321573, 3.586449961, 4.577477195, 5.482255712, 6.292175109, 7.02496065, 7.695044734, 8.37809837, 9.128773434, 9.966618049, 10.919664894, 11.998676238, 13.198822267, 14.535232312, 16], False, 3, [1, 1, 1, 1, 1, 1, 1, 1, 1, 1, 1, 1, 1, 1, 1, 1, 1, 1, 1], False),
    Part.LineSegment(V(7.702984, -0.481452, 0), V(7.615726, -0.481521, 0)),
], False)
sketch7.addConstraint([
    Sketcher.Constraint("Block", 2),
    Sketcher.Constraint("Block", 5),
    Sketcher.Constraint("Block", 6),
    Sketcher.Constraint("Block", 9),
    Sketcher.Constraint("Block", 11),
    Sketcher.Constraint("Block", 14),
    Sketcher.Constraint("Block", 15),
    Sketcher.Constraint("Block", 16),
    Sketcher.Constraint("Block", 17),
    Sketcher.Constraint("Block", 18),
    Sketcher.Constraint("Block", 21),
    Sketcher.Constraint("Block", 24),
    Sketcher.Constraint("Block", 28),
    Sketcher.Constraint("Block", 31),
    Sketcher.Constraint("Block", 33),
    Sketcher.Constraint("Block", 35),
    Sketcher.Constraint("Block", 38),
    Sketcher.Constraint("Block", 40),
    Sketcher.Constraint("Coincident", 0, 2, 1, 1),
    Sketcher.Constraint("Coincident", 1, 2, 2, 1),
    Sketcher.Constraint("Coincident", 2, 2, 3, 1),
    Sketcher.Constraint("Coincident", 3, 2, 4, 1),
    Sketcher.Constraint("Coincident", 4, 2, 5, 1),
    Sketcher.Constraint("Coincident", 6, 2, 7, 1),
    Sketcher.Constraint("Coincident", 7, 2, 8, 1),
    Sketcher.Constraint("Coincident", 8, 2, 9, 1),
    Sketcher.Constraint("Coincident", 9, 2, 10, 1),
    Sketcher.Constraint("Coincident", 10, 2, 11, 1),
    Sketcher.Constraint("Coincident", 11, 2, 12, 1),
    Sketcher.Constraint("Coincident", 12, 2, 0, 1),
    Sketcher.Constraint("Coincident", 13, 2, 14, 1),
    Sketcher.Constraint("Coincident", 18, 2, 13, 1),
    Sketcher.Constraint("Coincident", 19, 2, 20, 1),
    Sketcher.Constraint("Coincident", 20, 2, 21, 1),
    Sketcher.Constraint("Coincident", 21, 2, 22, 1),
    Sketcher.Constraint("Coincident", 22, 2, 23, 1),
    Sketcher.Constraint("Coincident", 23, 2, 24, 1),
    Sketcher.Constraint("Coincident", 24, 2, 25, 1),
    Sketcher.Constraint("Coincident", 25, 2, 26, 1),
    Sketcher.Constraint("Coincident", 26, 2, 27, 1),
    Sketcher.Constraint("Coincident", 27, 2, 28, 1),
    Sketcher.Constraint("Coincident", 28, 2, 29, 1),
    Sketcher.Constraint("Coincident", 29, 2, 30, 1),
    Sketcher.Constraint("Coincident", 30, 2, 31, 1),
    Sketcher.Constraint("Coincident", 31, 2, 32, 1),
    Sketcher.Constraint("Coincident", 32, 2, 33, 1),
    Sketcher.Constraint("Coincident", 33, 2, 34, 1),
    Sketcher.Constraint("Coincident", 34, 2, 35, 1),
    Sketcher.Constraint("Coincident", 35, 2, 36, 1),
    Sketcher.Constraint("Coincident", 36, 2, 37, 1),
    Sketcher.Constraint("Coincident", 37, 2, 38, 1),
    Sketcher.Constraint("Coincident", 38, 2, 39, 1),
    Sketcher.Constraint("Coincident", 39, 2, 40, 1),
    Sketcher.Constraint("Coincident", 40, 2, 41, 1),
    Sketcher.Constraint("Coincident", 41, 2, 19, 1),
    Sketcher.Constraint("Vertical", 0),
    Sketcher.Constraint("Horizontal", 1),
    Sketcher.Constraint("Horizontal", 3),
    Sketcher.Constraint("Horizontal", 8),
    Sketcher.Constraint("Vertical", 19),
    Sketcher.Constraint("Horizontal", 20),
    Sketcher.Constraint("Horizontal", 22),
    Sketcher.Constraint("Vertical", 23),
    Sketcher.Constraint("Horizontal", 26),
    Sketcher.Constraint("Vertical", 27),
    Sketcher.Constraint("Vertical", 29),
    Sketcher.Constraint("Horizontal", 30),
    Sketcher.Constraint("Horizontal", 37),
    Sketcher.Constraint("Horizontal", 37, 2, 41, 2),
    Sketcher.Constraint("Vertical", 12, 2, 19, 2),
    Sketcher.Constraint("DistanceX", 3, 1, 3, 2, Q("0.91578 mm")),
    Sketcher.Constraint("DistanceX", 37, 2, 37, 1, Q("0.081062 mm")),
    Sketcher.Constraint("DistanceX", 19, 2, 25, 2, Q("1.2022 mm")),
    Sketcher.Constraint("DistanceY", 34, 2, 26, 2, Q("0.217799 mm")),
    Sketcher.Constraint("DistanceX", 1, 1, 1, 2, Q("0.087258 mm")),
    Sketcher.Constraint("DistanceX", 8, 2, 8, 1, Q("0.072715 mm")),
    Sketcher.Constraint("DistanceY", 0, 2, 0, 1, Q("1.395984 mm")),
])
pocket5 = body.newObject("PartDesign::Pocket", "Pocket004")
pocket5.Profile = sketch7
pocket5.Length = 0.5

doc.recompute()
